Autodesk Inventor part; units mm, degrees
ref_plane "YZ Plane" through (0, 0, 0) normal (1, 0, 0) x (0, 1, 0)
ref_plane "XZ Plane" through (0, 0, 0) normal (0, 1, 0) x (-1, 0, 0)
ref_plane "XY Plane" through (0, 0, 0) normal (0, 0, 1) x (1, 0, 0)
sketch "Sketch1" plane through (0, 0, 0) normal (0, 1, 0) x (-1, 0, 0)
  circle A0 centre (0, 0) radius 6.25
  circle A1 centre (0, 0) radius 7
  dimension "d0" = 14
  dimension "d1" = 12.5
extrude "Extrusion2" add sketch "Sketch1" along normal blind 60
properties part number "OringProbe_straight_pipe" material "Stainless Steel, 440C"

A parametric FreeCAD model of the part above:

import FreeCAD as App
import Part
import Sketcher

V = App.Vector
Q = App.Units.Quantity

doc = App.newDocument("Part")
body = doc.addObject("PartDesign::Body", "Body")

sketch1 = body.newObject("Sketcher::SketchObject", "Sketch")
sketch1.AttachmentSupport = (doc.getObject("XZ_Plane"), [""])
sketch1.MapMode = "FlatFace"
sketch1.addGeometry(Part.Circle(V(0, 0, 0), V(0, 0, 1), 7), False)
sketch1.addGeometry(Part.Circle(V(0, 0, 0), V(0, 0, 1), 6.25), False)
sketch1.addConstraint(Sketcher.Constraint("Coincident", 0, 3, -1, 1))
sketch1.addConstraint(Sketcher.Constraint("Coincident", 1, 3, -1, 1))
sketch1.addConstraint(Sketcher.Constraint("Diameter", 0, Q("14 mm")))
sketch1.addConstraint(Sketcher.Constraint("Diameter", 1, Q("12.5 mm")))
pad1 = body.newObject("PartDesign::Pad", "Pad")
pad1.Profile = sketch1
pad1.Length = 60
pad1.Reversed = True

doc.recompute()
